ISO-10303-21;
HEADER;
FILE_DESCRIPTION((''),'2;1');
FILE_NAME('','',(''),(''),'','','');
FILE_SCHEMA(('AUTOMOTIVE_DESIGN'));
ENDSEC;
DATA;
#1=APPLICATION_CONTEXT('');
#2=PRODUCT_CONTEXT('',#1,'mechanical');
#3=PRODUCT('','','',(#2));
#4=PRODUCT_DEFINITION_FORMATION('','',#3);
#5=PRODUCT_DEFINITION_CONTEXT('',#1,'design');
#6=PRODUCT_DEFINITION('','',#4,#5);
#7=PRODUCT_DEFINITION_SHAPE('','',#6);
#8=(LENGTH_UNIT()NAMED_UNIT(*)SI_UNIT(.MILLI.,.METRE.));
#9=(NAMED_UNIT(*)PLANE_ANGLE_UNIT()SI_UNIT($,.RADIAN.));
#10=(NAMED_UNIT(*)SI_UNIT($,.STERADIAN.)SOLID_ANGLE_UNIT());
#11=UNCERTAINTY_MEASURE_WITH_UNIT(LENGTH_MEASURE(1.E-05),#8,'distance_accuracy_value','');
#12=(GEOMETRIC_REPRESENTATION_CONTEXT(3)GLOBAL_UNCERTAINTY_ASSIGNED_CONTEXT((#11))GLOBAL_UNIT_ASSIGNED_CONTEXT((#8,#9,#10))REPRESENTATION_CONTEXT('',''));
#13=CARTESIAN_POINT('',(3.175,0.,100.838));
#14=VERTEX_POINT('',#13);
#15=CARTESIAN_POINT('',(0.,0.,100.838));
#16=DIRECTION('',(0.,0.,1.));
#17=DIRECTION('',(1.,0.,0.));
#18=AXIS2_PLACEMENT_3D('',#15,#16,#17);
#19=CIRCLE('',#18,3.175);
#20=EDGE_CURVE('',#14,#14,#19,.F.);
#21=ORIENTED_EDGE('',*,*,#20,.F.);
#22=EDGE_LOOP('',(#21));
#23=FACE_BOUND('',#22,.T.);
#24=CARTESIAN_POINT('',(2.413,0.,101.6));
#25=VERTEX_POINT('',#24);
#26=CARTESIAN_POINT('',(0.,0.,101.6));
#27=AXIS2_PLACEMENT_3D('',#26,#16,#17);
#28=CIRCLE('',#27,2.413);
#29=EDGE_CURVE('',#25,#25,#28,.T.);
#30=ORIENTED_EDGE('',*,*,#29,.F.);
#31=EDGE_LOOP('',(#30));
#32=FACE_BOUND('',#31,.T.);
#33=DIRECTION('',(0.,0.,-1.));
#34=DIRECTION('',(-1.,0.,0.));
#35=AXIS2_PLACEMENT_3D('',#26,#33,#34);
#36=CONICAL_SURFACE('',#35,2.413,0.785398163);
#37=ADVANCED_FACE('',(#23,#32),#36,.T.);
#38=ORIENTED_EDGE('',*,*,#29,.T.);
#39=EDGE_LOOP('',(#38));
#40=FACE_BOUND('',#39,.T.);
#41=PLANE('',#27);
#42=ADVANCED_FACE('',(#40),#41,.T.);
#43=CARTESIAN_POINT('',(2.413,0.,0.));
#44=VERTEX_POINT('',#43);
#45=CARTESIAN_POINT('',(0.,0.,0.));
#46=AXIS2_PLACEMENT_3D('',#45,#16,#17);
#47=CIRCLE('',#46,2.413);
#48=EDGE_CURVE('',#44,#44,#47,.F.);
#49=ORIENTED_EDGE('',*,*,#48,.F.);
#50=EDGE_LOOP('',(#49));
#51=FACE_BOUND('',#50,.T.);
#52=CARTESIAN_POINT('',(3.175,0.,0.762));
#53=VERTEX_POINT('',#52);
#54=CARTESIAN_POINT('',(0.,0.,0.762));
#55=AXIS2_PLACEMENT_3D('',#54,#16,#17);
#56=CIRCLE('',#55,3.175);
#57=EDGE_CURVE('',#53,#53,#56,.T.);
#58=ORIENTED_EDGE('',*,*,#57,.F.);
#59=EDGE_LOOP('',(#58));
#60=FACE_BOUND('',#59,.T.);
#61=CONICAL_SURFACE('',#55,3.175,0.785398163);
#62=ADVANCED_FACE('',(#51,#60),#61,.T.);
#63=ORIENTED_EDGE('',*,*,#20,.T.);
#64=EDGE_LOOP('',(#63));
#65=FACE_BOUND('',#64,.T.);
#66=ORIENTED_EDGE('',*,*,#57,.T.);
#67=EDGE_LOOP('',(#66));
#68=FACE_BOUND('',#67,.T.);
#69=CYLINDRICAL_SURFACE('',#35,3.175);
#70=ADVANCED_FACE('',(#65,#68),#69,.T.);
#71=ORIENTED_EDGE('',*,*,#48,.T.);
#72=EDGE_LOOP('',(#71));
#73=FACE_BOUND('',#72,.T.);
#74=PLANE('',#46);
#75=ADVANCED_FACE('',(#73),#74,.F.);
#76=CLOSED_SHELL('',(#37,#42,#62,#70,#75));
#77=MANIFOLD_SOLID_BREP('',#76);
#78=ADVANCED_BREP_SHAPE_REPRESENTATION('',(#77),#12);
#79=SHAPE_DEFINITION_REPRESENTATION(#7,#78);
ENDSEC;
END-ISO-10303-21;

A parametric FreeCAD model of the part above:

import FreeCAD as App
import Part
import Sketcher
Q = App.Units.Quantity


def edges_at(feature, points):
    """Names of the edges that pass closest to the given points."""
    edges = feature.Shape.Edges
    near = lambda p: min(range(len(edges)), key=lambda i: edges[i].distToShape(Part.Vertex(*p))[0])
    return sorted({f"Edge{near(p) + 1}" for p in points})

doc = App.newDocument("Part")
body = doc.addObject("PartDesign::Body", "Body")

# Sketch on XY plane
sketch1 = body.newObject("Sketcher::SketchObject", "Sketch")
sketch1.AttachmentSupport = (doc.getObject("XY_Plane"), [""])
sketch1.MapMode = "FlatFace"
sketch1.addGeometry(Part.Circle(App.Vector(0, 0, 0), App.Vector(0, 0, 1), 3.2), False)
sketch1.addConstraint([
    Sketcher.Constraint("Coincident", 0, 3, -1, 1),
    Sketcher.Constraint("Diameter", 0, Q("0.25 in")),
])
pad1 = body.newObject("PartDesign::Pad", "Pad")
pad1.Profile = sketch1
pad1.Length = Q("4 in")
doc.recompute()

chamfer = body.newObject("PartDesign::Chamfer", "Chamfer")
chamfer.Base = (pad1, edges_at(pad1, [(-3.175, 0, 0), (-3.175, 0, 101.6)]))
chamfer.Size = Q("0.03 in")

doc.recompute()
